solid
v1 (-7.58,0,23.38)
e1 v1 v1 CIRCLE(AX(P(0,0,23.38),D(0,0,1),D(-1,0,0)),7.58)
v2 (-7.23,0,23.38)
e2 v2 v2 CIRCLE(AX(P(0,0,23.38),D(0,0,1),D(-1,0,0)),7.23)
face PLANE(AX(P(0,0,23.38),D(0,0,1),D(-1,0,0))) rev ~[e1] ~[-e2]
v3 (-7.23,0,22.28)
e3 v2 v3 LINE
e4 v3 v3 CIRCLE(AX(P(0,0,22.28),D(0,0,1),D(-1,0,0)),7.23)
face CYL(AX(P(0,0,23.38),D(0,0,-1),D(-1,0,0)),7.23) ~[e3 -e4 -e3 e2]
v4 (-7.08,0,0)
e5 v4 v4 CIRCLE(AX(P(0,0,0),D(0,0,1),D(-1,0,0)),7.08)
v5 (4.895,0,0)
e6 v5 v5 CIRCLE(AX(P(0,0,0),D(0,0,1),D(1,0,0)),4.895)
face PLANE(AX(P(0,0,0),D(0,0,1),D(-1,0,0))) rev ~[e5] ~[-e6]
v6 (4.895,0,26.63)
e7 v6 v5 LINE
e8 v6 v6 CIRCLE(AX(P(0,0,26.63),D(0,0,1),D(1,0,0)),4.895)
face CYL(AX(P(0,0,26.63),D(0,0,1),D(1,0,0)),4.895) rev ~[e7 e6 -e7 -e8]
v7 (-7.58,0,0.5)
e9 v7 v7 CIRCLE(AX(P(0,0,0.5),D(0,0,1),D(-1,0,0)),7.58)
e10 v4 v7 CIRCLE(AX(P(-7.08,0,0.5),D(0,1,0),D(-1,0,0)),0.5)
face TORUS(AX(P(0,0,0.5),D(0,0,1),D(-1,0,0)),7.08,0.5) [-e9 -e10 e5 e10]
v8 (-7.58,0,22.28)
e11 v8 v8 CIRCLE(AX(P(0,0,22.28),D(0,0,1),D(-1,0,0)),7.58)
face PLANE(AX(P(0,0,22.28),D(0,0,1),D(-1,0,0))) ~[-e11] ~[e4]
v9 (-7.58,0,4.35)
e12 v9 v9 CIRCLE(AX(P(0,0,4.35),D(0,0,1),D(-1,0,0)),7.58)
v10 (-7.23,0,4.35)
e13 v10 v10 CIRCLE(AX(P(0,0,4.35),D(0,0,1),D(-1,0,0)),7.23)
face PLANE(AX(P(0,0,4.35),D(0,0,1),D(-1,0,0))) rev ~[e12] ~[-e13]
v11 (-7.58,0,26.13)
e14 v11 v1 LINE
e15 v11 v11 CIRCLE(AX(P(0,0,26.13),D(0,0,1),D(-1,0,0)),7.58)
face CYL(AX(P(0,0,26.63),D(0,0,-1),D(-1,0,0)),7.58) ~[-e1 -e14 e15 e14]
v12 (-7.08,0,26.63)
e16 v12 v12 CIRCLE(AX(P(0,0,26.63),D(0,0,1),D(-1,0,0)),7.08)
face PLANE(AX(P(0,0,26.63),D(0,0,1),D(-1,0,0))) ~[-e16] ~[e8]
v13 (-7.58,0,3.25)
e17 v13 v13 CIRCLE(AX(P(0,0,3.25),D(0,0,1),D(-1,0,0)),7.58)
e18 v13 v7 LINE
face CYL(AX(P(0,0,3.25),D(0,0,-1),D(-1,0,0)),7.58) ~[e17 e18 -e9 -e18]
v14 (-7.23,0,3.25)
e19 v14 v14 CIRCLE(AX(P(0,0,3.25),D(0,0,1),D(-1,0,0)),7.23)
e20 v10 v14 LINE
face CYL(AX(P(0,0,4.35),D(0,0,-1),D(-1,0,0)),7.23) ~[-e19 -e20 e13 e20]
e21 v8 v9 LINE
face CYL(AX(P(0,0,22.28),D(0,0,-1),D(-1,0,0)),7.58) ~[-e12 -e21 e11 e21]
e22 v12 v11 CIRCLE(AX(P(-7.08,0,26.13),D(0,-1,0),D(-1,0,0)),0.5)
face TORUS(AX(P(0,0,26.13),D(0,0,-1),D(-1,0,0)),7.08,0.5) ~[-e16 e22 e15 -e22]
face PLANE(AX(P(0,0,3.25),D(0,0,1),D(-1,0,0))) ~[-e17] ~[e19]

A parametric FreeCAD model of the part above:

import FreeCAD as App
import Part
import Sketcher


def edges_at(feature, points):
    """Names of the edges that pass closest to the given points."""
    edges = feature.Shape.Edges
    near = lambda p: min(range(len(edges)), key=lambda i: edges[i].distToShape(Part.Vertex(*p))[0])
    return sorted({f"Edge{near(p) + 1}" for p in points})


def add_polygon(sketch, points):
    """Adds a closed chain of lines whose ends are joined by coincident constraints."""
    first, n = sketch.GeometryCount, len(points)
    for a, b in zip(points, points[1:] + points[:1]):
        sketch.addGeometry(Part.LineSegment(App.Vector(*a, 0), App.Vector(*b, 0)), False)
    for i in range(n):
        sketch.addConstraint(Sketcher.Constraint("Coincident", first + i, 2, first + (i + 1) % n, 1))

doc = App.newDocument("Part")
body = doc.addObject("PartDesign::Body", "Body")

# Sketch on XZ plane
sketch1 = body.newObject("Sketcher::SketchObject", "Sketch")
sketch1.AttachmentSupport = (doc.getObject("XZ_Plane"), [""])
sketch1.MapMode = "FlatFace"
add_polygon(sketch1, [(-7.58, 0), (0, 0), (0, 26.63), (-7.58, 26.63), (-7.58, 23.38), (-7.23, 23.38), (-7.23, 22.28), (-7.58, 22.28), (-7.58, 4.35), (-7.23, 4.35), (-7.23, 3.25), (-7.58, 3.25)])  # lines 0-11
sketch1.addConstraint(Sketcher.Constraint("Horizontal", 0))
sketch1.addConstraint(Sketcher.Constraint("Vertical", 1))
sketch1.addConstraint(Sketcher.Constraint("Horizontal", 2))
sketch1.addConstraint(Sketcher.Constraint("Vertical", 3))
sketch1.addConstraint(Sketcher.Constraint("Horizontal", 4))
sketch1.addConstraint(Sketcher.Constraint("Vertical", 5))
sketch1.addConstraint(Sketcher.Constraint("Horizontal", 6))
sketch1.addConstraint(Sketcher.Constraint("Vertical", 7))
sketch1.addConstraint(Sketcher.Constraint("Horizontal", 8))
sketch1.addConstraint(Sketcher.Constraint("Vertical", 9))
sketch1.addConstraint(Sketcher.Constraint("Horizontal", 10))
sketch1.addConstraint(Sketcher.Constraint("Vertical", 11))
sketch1.addConstraint(Sketcher.Constraint("Coincident", 0, 2, -1, 1))
sketch1.addConstraint(Sketcher.Constraint("Vertical", 3, 2, 6, 2))
sketch1.addConstraint(Sketcher.Constraint("Vertical", 5, 2, 8, 2))
sketch1.addConstraint(Sketcher.Constraint("Vertical", 7, 2, 10, 2))
sketch1.addConstraint(Sketcher.Constraint("Equal", 5, 9))
sketch1.addConstraint(Sketcher.Constraint("Equal", 3, 11))
sketch1.addConstraint(Sketcher.Constraint("DistanceY", 5, 2, 5, 1, 1.1))
sketch1.addConstraint(Sketcher.Constraint("DistanceX", 0, 1, 0, 2, 7.58))
sketch1.addConstraint(Sketcher.Constraint("DistanceX", 4, 1, 4, 2, 0.35))
sketch1.addConstraint(Sketcher.Constraint("DistanceY", 1, 1, 1, 2, 26.63))
sketch1.addConstraint(Sketcher.Constraint("DistanceY", 3, 2, 3, 1, 3.25))
revolution = body.newObject("PartDesign::Revolution", "Revolution")
revolution.Profile = sketch1
revolution.ReferenceAxis = (sketch1, ["V_Axis"])
revolution.Angle = 360

# Sketch on XY plane
sketch2 = body.newObject("Sketcher::SketchObject", "Sketch001")
sketch2.AttachmentSupport = (doc.getObject("XY_Plane"), [""])
sketch2.MapMode = "FlatFace"
sketch2.AttachmentOffset = App.Placement(App.Vector(0, 0, 26.63), App.Rotation())
sketch2.addGeometry(Part.Circle(App.Vector(0, 0, 0), App.Vector(0, 0, 1), 4.895), False)
sketch2.addConstraint(Sketcher.Constraint("Coincident", 0, 3, -1, 1))
sketch2.addConstraint(Sketcher.Constraint("Diameter", 0, 9.79))
pocket1 = body.newObject("PartDesign::Pocket", "Pocket")
pocket1.Profile = sketch2
pocket1.Type = "ThroughAll"
doc.recompute()

fillet = body.newObject("PartDesign::Fillet", "Fillet")
fillet.Base = (pocket1, edges_at(pocket1, [(7.58, 0, 0), (7.58, 0, 26.63)]))
fillet.Radius = 0.5

doc.recompute()
